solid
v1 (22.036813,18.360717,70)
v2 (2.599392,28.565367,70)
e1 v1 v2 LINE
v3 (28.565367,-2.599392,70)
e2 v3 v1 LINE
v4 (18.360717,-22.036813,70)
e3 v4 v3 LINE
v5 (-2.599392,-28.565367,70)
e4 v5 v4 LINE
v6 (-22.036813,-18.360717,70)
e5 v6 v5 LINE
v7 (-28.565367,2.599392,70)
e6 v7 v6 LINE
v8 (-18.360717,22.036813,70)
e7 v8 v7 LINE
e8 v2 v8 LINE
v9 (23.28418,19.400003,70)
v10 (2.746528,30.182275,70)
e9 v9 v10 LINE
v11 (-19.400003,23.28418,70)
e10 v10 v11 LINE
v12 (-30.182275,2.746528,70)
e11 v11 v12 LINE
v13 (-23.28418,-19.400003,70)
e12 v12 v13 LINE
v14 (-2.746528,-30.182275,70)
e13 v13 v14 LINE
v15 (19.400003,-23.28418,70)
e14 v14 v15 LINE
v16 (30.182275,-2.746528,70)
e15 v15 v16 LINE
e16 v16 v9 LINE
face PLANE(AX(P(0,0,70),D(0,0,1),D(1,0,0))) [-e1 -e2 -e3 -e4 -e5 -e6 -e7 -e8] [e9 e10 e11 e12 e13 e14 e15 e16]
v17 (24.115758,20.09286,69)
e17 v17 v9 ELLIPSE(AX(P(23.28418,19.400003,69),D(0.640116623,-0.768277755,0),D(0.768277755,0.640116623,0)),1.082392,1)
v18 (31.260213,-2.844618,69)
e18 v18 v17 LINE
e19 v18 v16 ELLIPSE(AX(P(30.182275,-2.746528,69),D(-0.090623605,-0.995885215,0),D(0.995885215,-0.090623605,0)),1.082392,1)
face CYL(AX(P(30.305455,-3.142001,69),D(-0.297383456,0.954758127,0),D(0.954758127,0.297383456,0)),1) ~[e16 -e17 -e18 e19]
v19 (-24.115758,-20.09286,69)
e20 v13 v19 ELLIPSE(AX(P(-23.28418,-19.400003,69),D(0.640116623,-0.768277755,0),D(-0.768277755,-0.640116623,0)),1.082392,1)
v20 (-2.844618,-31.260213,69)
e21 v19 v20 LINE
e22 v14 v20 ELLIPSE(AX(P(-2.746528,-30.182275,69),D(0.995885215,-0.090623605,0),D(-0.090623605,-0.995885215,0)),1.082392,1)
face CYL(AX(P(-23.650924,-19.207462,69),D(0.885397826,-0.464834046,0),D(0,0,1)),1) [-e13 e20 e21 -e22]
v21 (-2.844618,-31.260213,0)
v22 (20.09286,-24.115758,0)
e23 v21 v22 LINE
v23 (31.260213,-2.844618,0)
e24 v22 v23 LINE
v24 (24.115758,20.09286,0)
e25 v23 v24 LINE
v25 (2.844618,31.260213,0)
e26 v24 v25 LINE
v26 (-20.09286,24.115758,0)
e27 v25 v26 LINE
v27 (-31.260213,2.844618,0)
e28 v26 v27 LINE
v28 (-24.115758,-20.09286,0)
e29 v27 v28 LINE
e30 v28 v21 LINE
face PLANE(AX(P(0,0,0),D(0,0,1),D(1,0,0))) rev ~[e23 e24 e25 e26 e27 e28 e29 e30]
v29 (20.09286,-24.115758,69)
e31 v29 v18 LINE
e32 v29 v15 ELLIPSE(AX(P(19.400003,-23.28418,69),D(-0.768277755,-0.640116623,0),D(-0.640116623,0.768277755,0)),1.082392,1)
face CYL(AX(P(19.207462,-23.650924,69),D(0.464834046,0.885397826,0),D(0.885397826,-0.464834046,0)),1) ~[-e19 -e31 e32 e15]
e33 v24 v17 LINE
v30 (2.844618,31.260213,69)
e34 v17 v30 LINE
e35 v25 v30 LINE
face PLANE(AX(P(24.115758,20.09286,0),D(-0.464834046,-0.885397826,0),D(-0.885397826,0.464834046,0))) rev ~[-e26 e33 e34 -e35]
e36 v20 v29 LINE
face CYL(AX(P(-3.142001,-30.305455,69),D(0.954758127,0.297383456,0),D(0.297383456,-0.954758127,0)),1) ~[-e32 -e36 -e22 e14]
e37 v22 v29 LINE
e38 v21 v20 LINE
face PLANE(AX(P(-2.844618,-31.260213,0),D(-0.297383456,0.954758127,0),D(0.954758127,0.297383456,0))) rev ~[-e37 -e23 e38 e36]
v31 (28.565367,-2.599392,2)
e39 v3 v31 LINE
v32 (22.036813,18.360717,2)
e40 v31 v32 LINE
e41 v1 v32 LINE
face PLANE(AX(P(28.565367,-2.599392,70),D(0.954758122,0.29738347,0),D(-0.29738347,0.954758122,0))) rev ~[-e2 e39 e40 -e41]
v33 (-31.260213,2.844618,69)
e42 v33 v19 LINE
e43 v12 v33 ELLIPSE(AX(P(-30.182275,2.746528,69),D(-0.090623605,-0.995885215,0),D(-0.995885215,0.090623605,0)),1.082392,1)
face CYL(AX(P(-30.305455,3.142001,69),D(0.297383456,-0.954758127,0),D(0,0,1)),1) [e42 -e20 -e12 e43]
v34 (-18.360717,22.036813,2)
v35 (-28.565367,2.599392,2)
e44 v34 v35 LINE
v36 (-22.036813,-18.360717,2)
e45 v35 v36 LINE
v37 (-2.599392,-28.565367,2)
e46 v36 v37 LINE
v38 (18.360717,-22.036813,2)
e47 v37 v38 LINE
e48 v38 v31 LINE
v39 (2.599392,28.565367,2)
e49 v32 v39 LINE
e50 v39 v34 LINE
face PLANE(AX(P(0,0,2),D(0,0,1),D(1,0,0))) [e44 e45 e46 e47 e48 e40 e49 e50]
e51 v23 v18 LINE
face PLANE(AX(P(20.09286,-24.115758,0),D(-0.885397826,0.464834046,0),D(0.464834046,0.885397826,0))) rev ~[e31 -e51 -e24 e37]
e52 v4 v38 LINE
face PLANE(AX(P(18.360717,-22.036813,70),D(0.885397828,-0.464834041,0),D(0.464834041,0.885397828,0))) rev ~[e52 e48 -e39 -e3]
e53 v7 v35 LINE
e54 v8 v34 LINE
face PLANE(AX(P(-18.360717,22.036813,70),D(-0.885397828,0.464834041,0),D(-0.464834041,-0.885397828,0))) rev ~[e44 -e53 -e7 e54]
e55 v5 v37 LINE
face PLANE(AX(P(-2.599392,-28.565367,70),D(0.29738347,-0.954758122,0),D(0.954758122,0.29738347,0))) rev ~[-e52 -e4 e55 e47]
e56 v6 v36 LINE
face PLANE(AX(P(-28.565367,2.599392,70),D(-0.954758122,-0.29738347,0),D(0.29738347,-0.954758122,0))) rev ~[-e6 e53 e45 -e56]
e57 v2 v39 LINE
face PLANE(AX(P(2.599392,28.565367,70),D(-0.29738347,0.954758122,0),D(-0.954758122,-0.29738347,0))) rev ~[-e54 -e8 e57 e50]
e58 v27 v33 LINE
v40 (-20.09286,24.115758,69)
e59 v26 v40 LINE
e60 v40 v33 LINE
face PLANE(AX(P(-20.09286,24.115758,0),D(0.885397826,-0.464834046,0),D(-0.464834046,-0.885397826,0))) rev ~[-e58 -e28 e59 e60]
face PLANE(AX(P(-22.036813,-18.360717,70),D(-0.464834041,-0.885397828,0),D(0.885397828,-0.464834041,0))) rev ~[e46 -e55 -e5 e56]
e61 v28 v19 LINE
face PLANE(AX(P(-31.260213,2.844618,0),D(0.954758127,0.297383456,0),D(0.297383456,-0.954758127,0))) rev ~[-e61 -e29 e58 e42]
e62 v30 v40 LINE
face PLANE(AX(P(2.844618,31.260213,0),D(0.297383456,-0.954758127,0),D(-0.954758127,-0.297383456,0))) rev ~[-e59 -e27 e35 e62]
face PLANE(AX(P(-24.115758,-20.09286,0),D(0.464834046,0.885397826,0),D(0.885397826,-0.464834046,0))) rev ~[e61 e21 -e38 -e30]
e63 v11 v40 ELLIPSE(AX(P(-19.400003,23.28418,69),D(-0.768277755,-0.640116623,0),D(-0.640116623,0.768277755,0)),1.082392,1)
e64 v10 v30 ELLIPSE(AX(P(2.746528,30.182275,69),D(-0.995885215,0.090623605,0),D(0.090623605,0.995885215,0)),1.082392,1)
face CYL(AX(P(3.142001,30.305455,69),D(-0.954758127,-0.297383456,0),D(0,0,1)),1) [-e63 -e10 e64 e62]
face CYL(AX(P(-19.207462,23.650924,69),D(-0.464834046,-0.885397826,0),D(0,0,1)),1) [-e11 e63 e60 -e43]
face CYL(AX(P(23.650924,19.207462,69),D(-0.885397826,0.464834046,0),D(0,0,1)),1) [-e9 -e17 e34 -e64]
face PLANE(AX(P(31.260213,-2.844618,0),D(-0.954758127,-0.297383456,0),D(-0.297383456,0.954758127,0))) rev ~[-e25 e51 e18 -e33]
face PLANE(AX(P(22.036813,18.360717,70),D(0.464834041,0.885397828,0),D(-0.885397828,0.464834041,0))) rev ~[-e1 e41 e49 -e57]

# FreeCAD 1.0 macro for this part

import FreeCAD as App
import Part
import Sketcher

V = App.Vector


def edges_at(feature, points):
    """Names of the edges that pass closest to the given points."""
    edges = feature.Shape.Edges
    near = lambda p: min(range(len(edges)), key=lambda i: edges[i].distToShape(Part.Vertex(*p))[0])
    return sorted({f"Edge{near(p) + 1}" for p in points})

doc = App.newDocument("Part")
body = doc.addObject("PartDesign::Body", "Body")

# Sketch on XY plane
sketch1 = body.newObject("Sketcher::SketchObject", "Sketch")
sketch1.AttachmentSupport = (doc.getObject("XY_Plane"), [""])
sketch1.MapMode = "FlatFace"
sketch1.addGeometry([
    Part.LineSegment(V(20, -24, 0), V(31, -3, 0)),  # 0
    Part.LineSegment(V(31, -3, 0), V(24, 20, 0)),  # 1
    Part.LineSegment(V(24, 20, 0), V(3, 31, 0)),  # 2
    Part.LineSegment(V(3, 31, 0), V(-20, 24, 0)),  # 3
    Part.LineSegment(V(-20, 24, 0), V(-31, 3, 0)),  # 4
    Part.LineSegment(V(-31, 3, 0), V(-24, -20, 0)),  # 5
    Part.LineSegment(V(-24, -20, 0), V(-3, -31, 0)),  # 6
    Part.LineSegment(V(-3, -31, 0), V(20, -24, 0)),  # 7
], False)
sketch1.addConstraint([
    Sketcher.Constraint("Coincident", 0, 2, 1, 1),
    Sketcher.Constraint("Coincident", 1, 2, 2, 1),
    Sketcher.Constraint("Coincident", 2, 2, 3, 1),
    Sketcher.Constraint("Coincident", 3, 2, 4, 1),
    Sketcher.Constraint("Coincident", 4, 2, 5, 1),
    Sketcher.Constraint("Coincident", 5, 2, 6, 1),
    Sketcher.Constraint("Coincident", 6, 2, 7, 1),
    Sketcher.Constraint("Coincident", 7, 2, 0, 1),
    Sketcher.Constraint("Symmetric", 0, 2, 4, 2, -1, 1),
    Sketcher.Constraint("Symmetric", 1, 2, 5, 2, -1, 1),
    Sketcher.Constraint("Symmetric", 2, 2, 6, 2, -1, 1),
    Sketcher.Constraint("Symmetric", 3, 2, 7, 2, -1, 1),
    Sketcher.Constraint("Perpendicular", 0, 2),
    Sketcher.Constraint("Perpendicular", 1, 3),
    Sketcher.Constraint("Equal", 0, 1),
    Sketcher.Constraint("Equal", 1, 2),
    Sketcher.Constraint("Equal", 2, 3),
    Sketcher.Constraint("DistanceY", 0, 2, -1, 1, 2.844618),
    Sketcher.Constraint("DistanceY", -1, 1, 1, 2, 20.09286),
    Sketcher.Constraint("DistanceX", 2, 2, 1, 2, 21.27114),
])
pad1 = body.newObject("PartDesign::Pad", "Pad")
pad1.Profile = sketch1
pad1.Length = 70

# Sketch on XY plane
sketch2 = body.newObject("Sketcher::SketchObject", "Sketch001")
sketch2.AttachmentSupport = (doc.getObject("XY_Plane"), [""])
sketch2.MapMode = "FlatFace"
sketch2.AttachmentOffset = App.Placement(V(0, 0, 70), App.Rotation())
sketch2.addGeometry([
    Part.LineSegment(V(18, -22, 0), V(29, -3, 0)),  # 0
    Part.LineSegment(V(29, -3, 0), V(22, 18, 0)),  # 1
    Part.LineSegment(V(22, 18, 0), V(3, 29, 0)),  # 2
    Part.LineSegment(V(3, 29, 0), V(-18, 22, 0)),  # 3
    Part.LineSegment(V(-18, 22, 0), V(-29, 3, 0)),  # 4
    Part.LineSegment(V(-29, 3, 0), V(-22, -18, 0)),  # 5
    Part.LineSegment(V(-22, -18, 0), V(-3, -29, 0)),  # 6
    Part.LineSegment(V(-3, -29, 0), V(18, -22, 0)),  # 7
], False)
sketch2.addConstraint([
    Sketcher.Constraint("Coincident", 0, 2, 1, 1),
    Sketcher.Constraint("Coincident", 1, 2, 2, 1),
    Sketcher.Constraint("Coincident", 2, 2, 3, 1),
    Sketcher.Constraint("Coincident", 3, 2, 4, 1),
    Sketcher.Constraint("Coincident", 4, 2, 5, 1),
    Sketcher.Constraint("Coincident", 5, 2, 6, 1),
    Sketcher.Constraint("Coincident", 6, 2, 7, 1),
    Sketcher.Constraint("Coincident", 7, 2, 0, 1),
    Sketcher.Constraint("Symmetric", 0, 2, 4, 2, -1, 1),
    Sketcher.Constraint("Symmetric", 1, 2, 5, 2, -1, 1),
    Sketcher.Constraint("Symmetric", 2, 2, 6, 2, -1, 1),
    Sketcher.Constraint("Symmetric", 3, 2, 7, 2, -1, 1),
    Sketcher.Constraint("Perpendicular", 0, 2),
    Sketcher.Constraint("Perpendicular", 1, 3),
    Sketcher.Constraint("Equal", 0, 1),
    Sketcher.Constraint("Equal", 1, 2),
    Sketcher.Constraint("Equal", 2, 3),
    Sketcher.Constraint("Distance", 0, 21.953319),
    Sketcher.Constraint("DistanceY", 0, 2, -1, 1, 2.599392),
    Sketcher.Constraint("DistanceY", 0, 2, 1, 2, 20.960109),
])
pocket1 = body.newObject("PartDesign::Pocket", "Pocket")
pocket1.Profile = sketch2
pocket1.Length = 68
doc.recompute()

fillet = body.newObject("PartDesign::Fillet", "Fillet")
fillet.Base = (pocket1, edges_at(pocket1, [
    (25.677, -13.48, 70),
    (27.688, 8.624, 70),
    (13.48, 25.677, 70),
    (-8.624, 27.688, 70),
    (-25.677, 13.48, 70),
    (-27.688, -8.624, 70),
    (-13.48, -25.677, 70),
    (8.624, -27.688, 70),
]))
fillet.Radius = 1

doc.recompute()
